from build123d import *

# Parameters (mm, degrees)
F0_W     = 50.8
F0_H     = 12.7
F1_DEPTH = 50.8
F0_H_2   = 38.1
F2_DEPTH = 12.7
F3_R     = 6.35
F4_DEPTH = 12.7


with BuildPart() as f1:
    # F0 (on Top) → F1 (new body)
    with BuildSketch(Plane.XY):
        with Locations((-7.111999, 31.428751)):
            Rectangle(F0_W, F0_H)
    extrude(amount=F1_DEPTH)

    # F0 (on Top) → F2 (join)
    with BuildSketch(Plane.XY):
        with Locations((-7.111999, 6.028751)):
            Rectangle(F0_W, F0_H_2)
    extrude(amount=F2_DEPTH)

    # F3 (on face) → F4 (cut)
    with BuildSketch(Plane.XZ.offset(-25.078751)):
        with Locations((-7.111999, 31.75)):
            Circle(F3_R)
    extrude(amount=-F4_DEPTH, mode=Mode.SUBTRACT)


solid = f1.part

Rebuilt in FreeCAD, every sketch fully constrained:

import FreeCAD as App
import Part
import Sketcher
from FreeCAD import Vector
Q = App.Units.Quantity

doc = App.newDocument("Part")
params = doc.addObject("Spreadsheet::Sheet", "Params")
for row, (alias, value) in enumerate([
    ("sketch1_width", "2 in"),
    ("sketch1_height", "0.5 in"),
    ("pad1_length", "2 in"),
    ("sketch2_width", "2 in"),
    ("sketch2_height", "1.5 in"),
    ("pad2_length", "0.5 in"),
    ("sketch3_diameter", "0.5 in"),
    ("pocket1_length", "0.5 in"),
], start=1):
    params.set(f"A{row}", alias)
    params.set(f"B{row}", "=" + value)
    params.setAlias(f"B{row}", alias)

body = doc.addObject("PartDesign::Body", "Body")

sketch1 = body.newObject("Sketcher::SketchObject", "Sketch")
sketch1.AttachmentSupport = (doc.getObject("XY_Plane"), [""])
sketch1.MapMode = "FlatFace"
sketch1.addGeometry(Part.LineSegment(Vector(-33, 38, 0), Vector(-33, 25, 0)), False)
sketch1.addGeometry(Part.LineSegment(Vector(-33, 25, 0), Vector(18, 25, 0)), False)
sketch1.addGeometry(Part.LineSegment(Vector(18, 25, 0), Vector(18, 38, 0)), False)
sketch1.addGeometry(Part.LineSegment(Vector(18, 38, 0), Vector(-33, 38, 0)), False)
sketch1.addConstraint(Sketcher.Constraint("Coincident", 0, 2, 1, 1))
sketch1.addConstraint(Sketcher.Constraint("Coincident", 1, 2, 2, 1))
sketch1.addConstraint(Sketcher.Constraint("Coincident", 2, 2, 3, 1))
sketch1.addConstraint(Sketcher.Constraint("Coincident", 3, 2, 0, 1))
sketch1.addConstraint(Sketcher.Constraint("Vertical", 0))
sketch1.addConstraint(Sketcher.Constraint("Horizontal", 1))
sketch1.addConstraint(Sketcher.Constraint("Vertical", 2))
sketch1.addConstraint(Sketcher.Constraint("Horizontal", 3))
sketch1.addConstraint(Sketcher.Constraint("DistanceX", 1, 1, 1, 2, Q("2 in")))
sketch1.addConstraint(Sketcher.Constraint("DistanceY", 0, 2, 0, 1, Q("0.5 in")))
sketch1.addConstraint(Sketcher.Constraint("DistanceX", 0, 2, -1, 1, Q("1.28 in")))
sketch1.addConstraint(Sketcher.Constraint("DistanceY", -1, 1, 0, 2, Q("25.078751 mm")))
sketch1.setExpression("Constraints[8]", "Params.sketch1_width")
sketch1.setExpression("Constraints[9]", "Params.sketch1_height")
pad1 = body.newObject("PartDesign::Pad", "Pad")
pad1.Profile = sketch1
pad1.setExpression("Length", "Params.pad1_length")

sketch2 = body.newObject("Sketcher::SketchObject", "Sketch001")
sketch2.AttachmentSupport = (doc.getObject("XY_Plane"), [""])
sketch2.MapMode = "FlatFace"
sketch2.addGeometry(Part.LineSegment(Vector(-33, 25, 0), Vector(-33, -13, 0)), False)
sketch2.addGeometry(Part.LineSegment(Vector(-33, -13, 0), Vector(18, -13, 0)), False)
sketch2.addGeometry(Part.LineSegment(Vector(18, -13, 0), Vector(18, 25, 0)), False)
sketch2.addGeometry(Part.LineSegment(Vector(18, 25, 0), Vector(-33, 25, 0)), False)
sketch2.addConstraint(Sketcher.Constraint("Coincident", 0, 2, 1, 1))
sketch2.addConstraint(Sketcher.Constraint("Coincident", 1, 2, 2, 1))
sketch2.addConstraint(Sketcher.Constraint("Coincident", 2, 2, 3, 1))
sketch2.addConstraint(Sketcher.Constraint("Coincident", 3, 2, 0, 1))
sketch2.addConstraint(Sketcher.Constraint("Vertical", 0))
sketch2.addConstraint(Sketcher.Constraint("Horizontal", 1))
sketch2.addConstraint(Sketcher.Constraint("Vertical", 2))
sketch2.addConstraint(Sketcher.Constraint("Horizontal", 3))
sketch2.addConstraint(Sketcher.Constraint("DistanceX", 1, 1, 1, 2, Q("2 in")))
sketch2.addConstraint(Sketcher.Constraint("DistanceY", 0, 2, 0, 1, Q("1.5 in")))
sketch2.addConstraint(Sketcher.Constraint("DistanceX", 0, 2, -1, 1, Q("1.28 in")))
sketch2.addConstraint(Sketcher.Constraint("DistanceY", 0, 2, -1, 1, Q("13.021249 mm")))
sketch2.setExpression("Constraints[8]", "Params.sketch2_width")
sketch2.setExpression("Constraints[9]", "Params.sketch2_height")
pad2 = body.newObject("PartDesign::Pad", "Pad001")
pad2.Profile = sketch2
pad2.setExpression("Length", "Params.pad2_length")

sketch3 = body.newObject("Sketcher::SketchObject", "Sketch002")
sketch3.AttachmentSupport = (doc.getObject("XZ_Plane"), [""])
sketch3.MapMode = "FlatFace"
sketch3.AttachmentOffset = App.Placement(Vector(0, 0, -25.078751), App.Rotation())
sketch3.addGeometry(Part.Circle(Vector(-7, 32, 0), Vector(0, 0, 1), 6), False)
sketch3.addConstraint(Sketcher.Constraint("Diameter", 0, Q("0.5 in")))
sketch3.addConstraint(Sketcher.Constraint("DistanceX", 0, 3, -1, 1, Q("0.28 in")))
sketch3.addConstraint(Sketcher.Constraint("DistanceY", -1, 1, 0, 3, Q("1.25 in")))
sketch3.setExpression("Constraints[0]", "Params.sketch3_diameter")
pocket1 = body.newObject("PartDesign::Pocket", "Pocket")
pocket1.Profile = sketch3
pocket1.setExpression("Length", "Params.pocket1_length")

doc.recompute()
